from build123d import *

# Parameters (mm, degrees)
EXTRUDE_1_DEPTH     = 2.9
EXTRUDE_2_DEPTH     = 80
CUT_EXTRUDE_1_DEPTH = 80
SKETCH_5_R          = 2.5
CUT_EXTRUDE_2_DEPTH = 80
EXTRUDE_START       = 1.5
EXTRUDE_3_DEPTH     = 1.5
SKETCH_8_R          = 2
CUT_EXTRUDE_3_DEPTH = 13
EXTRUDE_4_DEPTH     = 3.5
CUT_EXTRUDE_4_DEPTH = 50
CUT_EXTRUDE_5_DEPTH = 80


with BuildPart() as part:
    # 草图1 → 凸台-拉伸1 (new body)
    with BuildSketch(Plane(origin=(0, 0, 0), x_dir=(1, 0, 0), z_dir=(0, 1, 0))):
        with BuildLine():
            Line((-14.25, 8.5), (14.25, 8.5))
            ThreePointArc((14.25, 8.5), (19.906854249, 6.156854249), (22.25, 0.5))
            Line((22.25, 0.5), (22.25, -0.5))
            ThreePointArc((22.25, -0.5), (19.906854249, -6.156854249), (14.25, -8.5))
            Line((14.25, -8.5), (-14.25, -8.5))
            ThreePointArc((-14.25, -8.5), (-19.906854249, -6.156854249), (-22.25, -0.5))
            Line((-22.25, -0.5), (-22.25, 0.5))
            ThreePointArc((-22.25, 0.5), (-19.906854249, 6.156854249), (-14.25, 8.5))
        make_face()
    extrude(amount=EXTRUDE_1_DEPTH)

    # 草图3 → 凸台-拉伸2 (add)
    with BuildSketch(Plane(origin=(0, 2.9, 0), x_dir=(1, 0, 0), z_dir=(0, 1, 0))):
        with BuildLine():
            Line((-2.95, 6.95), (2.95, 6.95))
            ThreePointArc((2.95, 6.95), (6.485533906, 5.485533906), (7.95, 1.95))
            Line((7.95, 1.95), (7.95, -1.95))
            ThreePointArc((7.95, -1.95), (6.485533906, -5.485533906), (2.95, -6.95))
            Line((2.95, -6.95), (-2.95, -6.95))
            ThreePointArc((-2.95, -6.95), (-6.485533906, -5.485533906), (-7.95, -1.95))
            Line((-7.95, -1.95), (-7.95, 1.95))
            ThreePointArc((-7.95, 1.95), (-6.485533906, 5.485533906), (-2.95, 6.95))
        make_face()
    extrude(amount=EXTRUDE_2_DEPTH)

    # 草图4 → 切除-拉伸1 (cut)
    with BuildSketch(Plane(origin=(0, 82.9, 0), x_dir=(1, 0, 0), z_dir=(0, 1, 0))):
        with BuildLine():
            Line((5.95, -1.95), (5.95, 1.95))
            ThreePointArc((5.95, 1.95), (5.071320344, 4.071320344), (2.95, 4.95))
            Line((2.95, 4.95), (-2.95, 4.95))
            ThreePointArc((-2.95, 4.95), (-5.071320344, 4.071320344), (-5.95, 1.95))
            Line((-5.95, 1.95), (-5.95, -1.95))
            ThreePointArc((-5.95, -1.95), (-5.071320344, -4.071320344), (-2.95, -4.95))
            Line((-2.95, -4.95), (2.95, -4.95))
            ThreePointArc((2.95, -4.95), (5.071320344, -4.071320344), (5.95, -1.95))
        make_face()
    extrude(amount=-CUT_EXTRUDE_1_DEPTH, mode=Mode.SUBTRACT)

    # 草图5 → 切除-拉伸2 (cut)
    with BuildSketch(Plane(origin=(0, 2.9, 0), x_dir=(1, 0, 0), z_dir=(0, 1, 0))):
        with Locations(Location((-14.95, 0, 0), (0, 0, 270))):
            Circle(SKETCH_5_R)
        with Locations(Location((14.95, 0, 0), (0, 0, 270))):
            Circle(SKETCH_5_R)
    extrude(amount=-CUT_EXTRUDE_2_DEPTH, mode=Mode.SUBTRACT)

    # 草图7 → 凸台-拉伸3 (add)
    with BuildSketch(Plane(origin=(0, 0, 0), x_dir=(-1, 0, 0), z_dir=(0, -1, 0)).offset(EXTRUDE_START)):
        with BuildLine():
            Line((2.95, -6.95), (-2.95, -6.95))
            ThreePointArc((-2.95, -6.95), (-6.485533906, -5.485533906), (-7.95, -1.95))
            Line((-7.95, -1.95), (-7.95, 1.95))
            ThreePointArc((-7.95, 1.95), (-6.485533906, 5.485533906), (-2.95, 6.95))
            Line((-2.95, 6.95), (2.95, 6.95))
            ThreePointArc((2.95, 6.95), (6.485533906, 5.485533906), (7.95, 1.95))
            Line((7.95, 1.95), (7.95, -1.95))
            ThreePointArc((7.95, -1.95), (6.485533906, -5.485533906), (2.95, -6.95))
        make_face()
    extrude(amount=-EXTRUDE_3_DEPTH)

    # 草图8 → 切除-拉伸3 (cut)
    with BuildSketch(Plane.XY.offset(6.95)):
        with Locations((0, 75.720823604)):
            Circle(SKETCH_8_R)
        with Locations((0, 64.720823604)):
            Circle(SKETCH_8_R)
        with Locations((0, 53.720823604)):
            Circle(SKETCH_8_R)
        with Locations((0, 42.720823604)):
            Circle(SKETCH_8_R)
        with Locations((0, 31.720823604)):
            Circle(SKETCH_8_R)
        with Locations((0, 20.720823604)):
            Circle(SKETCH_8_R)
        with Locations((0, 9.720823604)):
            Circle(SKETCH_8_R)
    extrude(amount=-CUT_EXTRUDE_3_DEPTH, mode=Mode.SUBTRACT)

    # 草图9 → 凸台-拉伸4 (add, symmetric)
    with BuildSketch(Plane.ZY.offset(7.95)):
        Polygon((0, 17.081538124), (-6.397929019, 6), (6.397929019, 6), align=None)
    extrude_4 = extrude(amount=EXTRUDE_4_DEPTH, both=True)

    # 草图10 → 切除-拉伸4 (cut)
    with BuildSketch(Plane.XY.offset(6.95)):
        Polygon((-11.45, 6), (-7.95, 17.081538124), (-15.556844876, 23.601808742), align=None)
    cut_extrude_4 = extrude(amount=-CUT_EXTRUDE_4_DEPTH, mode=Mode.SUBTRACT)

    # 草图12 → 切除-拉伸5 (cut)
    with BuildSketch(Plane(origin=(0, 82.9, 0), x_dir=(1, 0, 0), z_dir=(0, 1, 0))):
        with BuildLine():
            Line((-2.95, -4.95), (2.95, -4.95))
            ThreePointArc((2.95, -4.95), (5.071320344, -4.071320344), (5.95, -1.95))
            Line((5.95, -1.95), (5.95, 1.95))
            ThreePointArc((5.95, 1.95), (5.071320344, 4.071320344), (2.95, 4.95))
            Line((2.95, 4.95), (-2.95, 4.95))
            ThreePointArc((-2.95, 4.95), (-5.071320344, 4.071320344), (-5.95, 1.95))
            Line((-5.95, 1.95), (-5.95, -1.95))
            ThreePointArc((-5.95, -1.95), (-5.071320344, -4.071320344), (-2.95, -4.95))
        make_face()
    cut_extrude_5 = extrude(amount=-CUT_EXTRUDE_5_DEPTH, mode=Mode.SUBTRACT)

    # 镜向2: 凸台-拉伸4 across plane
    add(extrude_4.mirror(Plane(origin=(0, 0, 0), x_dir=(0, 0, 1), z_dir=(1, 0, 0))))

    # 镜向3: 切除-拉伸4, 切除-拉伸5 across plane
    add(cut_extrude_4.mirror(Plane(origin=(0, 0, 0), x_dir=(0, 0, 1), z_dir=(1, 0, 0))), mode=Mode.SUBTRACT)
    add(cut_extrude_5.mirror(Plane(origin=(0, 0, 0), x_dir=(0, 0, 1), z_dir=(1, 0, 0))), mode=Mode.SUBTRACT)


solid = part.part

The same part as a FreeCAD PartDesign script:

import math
import FreeCAD as App
import Part
import Sketcher
from FreeCAD import Vector
Q = App.Units.Quantity


def add_polygon(sketch, points):
    """Adds a closed chain of lines whose ends are joined by coincident constraints."""
    first, n = sketch.GeometryCount, len(points)
    for a, b in zip(points, points[1:] + points[:1]):
        sketch.addGeometry(Part.LineSegment(App.Vector(*a, 0), App.Vector(*b, 0)), False)
    for i in range(n):
        sketch.addConstraint(Sketcher.Constraint("Coincident", first + i, 2, first + (i + 1) % n, 1))

doc = App.newDocument("Part")
body = doc.addObject("PartDesign::Body", "Body")

# Sketch on XZ plane
sketch1 = body.newObject("Sketcher::SketchObject", "Sketch")
sketch1.AttachmentSupport = (doc.getObject("XZ_Plane"), [""])
sketch1.MapMode = "FlatFace"
sketch1.addGeometry(Part.LineSegment(Vector(14.2, -8.5, 0), Vector(-14.2, -8.5, 0)), False)
sketch1.addGeometry(Part.ArcOfCircle(Part.Circle(Vector(-14.2, -0.5, 0), Vector(0, 0, 1), 8), math.radians(-180), math.radians(-90)), False)
sketch1.addGeometry(Part.LineSegment(Vector(-22.2, -0.5, 0), Vector(-22.2, 0.5, 0)), False)
sketch1.addGeometry(Part.ArcOfCircle(Part.Circle(Vector(-14.2, 0.5, 0), Vector(0, 0, 1), 8), math.radians(90), math.radians(180)), False)
sketch1.addGeometry(Part.LineSegment(Vector(-14.2, 8.5, 0), Vector(14.2, 8.5, 0)), False)
sketch1.addGeometry(Part.ArcOfCircle(Part.Circle(Vector(14.2, 0.5, 0), Vector(0, 0, 1), 8), math.radians(0), math.radians(90)), False)
sketch1.addGeometry(Part.LineSegment(Vector(22.2, 0.5, 0), Vector(22.2, -0.5, 0)), False)
sketch1.addGeometry(Part.ArcOfCircle(Part.Circle(Vector(14.2, -0.5, 0), Vector(0, 0, 1), 8), math.radians(-90), math.radians(0)), False)
sketch1.addConstraint(Sketcher.Constraint("Tangent", 0, 2, 1, 2))
sketch1.addConstraint(Sketcher.Constraint("Tangent", 1, 1, 2, 1))
sketch1.addConstraint(Sketcher.Constraint("Tangent", 2, 2, 3, 2))
sketch1.addConstraint(Sketcher.Constraint("Tangent", 3, 1, 4, 1))
sketch1.addConstraint(Sketcher.Constraint("Tangent", 4, 2, 5, 2))
sketch1.addConstraint(Sketcher.Constraint("Tangent", 5, 1, 6, 1))
sketch1.addConstraint(Sketcher.Constraint("Tangent", 6, 2, 7, 2))
sketch1.addConstraint(Sketcher.Constraint("Tangent", 7, 1, 0, 1))
sketch1.addConstraint(Sketcher.Constraint("Horizontal", 0))
sketch1.addConstraint(Sketcher.Constraint("Vertical", 2))
sketch1.addConstraint(Sketcher.Constraint("Horizontal", 4))
sketch1.addConstraint(Sketcher.Constraint("Vertical", 6))
sketch1.addConstraint(Sketcher.Constraint("Equal", 1, 3))
sketch1.addConstraint(Sketcher.Constraint("Equal", 3, 5))
sketch1.addConstraint(Sketcher.Constraint("Equal", 5, 7))
sketch1.addConstraint(Sketcher.Constraint("Symmetric", 1, 3, 5, 3, -1, 1))
sketch1.addConstraint(Sketcher.Constraint("Radius", 1, Q("8 mm")))
sketch1.addConstraint(Sketcher.Constraint("DistanceY", 2, 1, 2, 2, Q("1 mm")))
sketch1.addConstraint(Sketcher.Constraint("DistanceX", 0, 2, 0, 1, Q("28.5 mm")))
pad1 = body.newObject("PartDesign::Pad", "Pad")
pad1.Profile = sketch1
pad1.Length = 2.9
pad1.Reversed = True

# Sketch on XZ plane
sketch2 = body.newObject("Sketcher::SketchObject", "Sketch001")
sketch2.AttachmentSupport = (doc.getObject("XZ_Plane"), [""])
sketch2.MapMode = "FlatFace"
sketch2.AttachmentOffset = App.Placement(Vector(0, 0, -2.9), App.Rotation())
sketch2.addGeometry(Part.LineSegment(Vector(3, -7, 0), Vector(-3, -7, 0)), False)
sketch2.addGeometry(Part.ArcOfCircle(Part.Circle(Vector(-3, -1.9, 0), Vector(0, 0, 1), 5), math.radians(180), math.radians(270)), False)
sketch2.addGeometry(Part.LineSegment(Vector(-8, -1.9, 0), Vector(-8, 1.9, 0)), False)
sketch2.addGeometry(Part.ArcOfCircle(Part.Circle(Vector(-3, 1.9, 0), Vector(0, 0, 1), 5), math.radians(90), math.radians(180)), False)
sketch2.addGeometry(Part.LineSegment(Vector(-3, 7, 0), Vector(3, 7, 0)), False)
sketch2.addGeometry(Part.ArcOfCircle(Part.Circle(Vector(3, 1.9, 0), Vector(0, 0, 1), 5), math.radians(0), math.radians(90)), False)
sketch2.addGeometry(Part.LineSegment(Vector(8, 1.9, 0), Vector(8, -1.9, 0)), False)
sketch2.addGeometry(Part.ArcOfCircle(Part.Circle(Vector(3, -1.9, 0), Vector(0, 0, 1), 5), math.radians(-90), math.radians(0)), False)
sketch2.addConstraint(Sketcher.Constraint("Tangent", 0, 2, 1, 2))
sketch2.addConstraint(Sketcher.Constraint("Tangent", 1, 1, 2, 1))
sketch2.addConstraint(Sketcher.Constraint("Tangent", 2, 2, 3, 2))
sketch2.addConstraint(Sketcher.Constraint("Tangent", 3, 1, 4, 1))
sketch2.addConstraint(Sketcher.Constraint("Tangent", 4, 2, 5, 2))
sketch2.addConstraint(Sketcher.Constraint("Tangent", 5, 1, 6, 1))
sketch2.addConstraint(Sketcher.Constraint("Tangent", 6, 2, 7, 2))
sketch2.addConstraint(Sketcher.Constraint("Tangent", 7, 1, 0, 1))
sketch2.addConstraint(Sketcher.Constraint("Horizontal", 0))
sketch2.addConstraint(Sketcher.Constraint("Vertical", 2))
sketch2.addConstraint(Sketcher.Constraint("Horizontal", 4))
sketch2.addConstraint(Sketcher.Constraint("Vertical", 6))
sketch2.addConstraint(Sketcher.Constraint("Equal", 1, 3))
sketch2.addConstraint(Sketcher.Constraint("Equal", 3, 5))
sketch2.addConstraint(Sketcher.Constraint("Equal", 5, 7))
sketch2.addConstraint(Sketcher.Constraint("Symmetric", 1, 3, 5, 3, -1, 1))
sketch2.addConstraint(Sketcher.Constraint("Radius", 1, Q("5 mm")))
sketch2.addConstraint(Sketcher.Constraint("DistanceX", 0, 2, 0, 1, Q("5.9 mm")))
sketch2.addConstraint(Sketcher.Constraint("DistanceY", 2, 1, 2, 2, Q("3.9 mm")))
pad2 = body.newObject("PartDesign::Pad", "Pad001")
pad2.Profile = sketch2
pad2.Length = 80
pad2.Reversed = True

# Sketch on XZ plane
sketch3 = body.newObject("Sketcher::SketchObject", "Sketch002")
sketch3.AttachmentSupport = (doc.getObject("XZ_Plane"), [""])
sketch3.MapMode = "FlatFace"
sketch3.AttachmentOffset = App.Placement(Vector(0, 0, -82.9), App.Rotation())
sketch3.addGeometry(Part.LineSegment(Vector(6, 1.9, 0), Vector(6, -1.9, 0)), False)
sketch3.addGeometry(Part.ArcOfCircle(Part.Circle(Vector(3, -2, 0), Vector(0, 0, 1), 3), math.radians(-90), math.radians(0)), False)
sketch3.addGeometry(Part.LineSegment(Vector(3, -5, 0), Vector(-3, -5, 0)), False)
sketch3.addGeometry(Part.ArcOfCircle(Part.Circle(Vector(-3, -2, 0), Vector(0, 0, 1), 3), math.radians(180), math.radians(270)), False)
sketch3.addGeometry(Part.LineSegment(Vector(-6, -1.9, 0), Vector(-6, 1.9, 0)), False)
sketch3.addGeometry(Part.ArcOfCircle(Part.Circle(Vector(-3, 2, 0), Vector(0, 0, 1), 3), math.radians(90), math.radians(180)), False)
sketch3.addGeometry(Part.LineSegment(Vector(-3, 5, 0), Vector(3, 5, 0)), False)
sketch3.addGeometry(Part.ArcOfCircle(Part.Circle(Vector(3, 2, 0), Vector(0, 0, 1), 3), math.radians(0), math.radians(90)), False)
sketch3.addConstraint(Sketcher.Constraint("Tangent", 0, 2, 1, 2))
sketch3.addConstraint(Sketcher.Constraint("Tangent", 1, 1, 2, 1))
sketch3.addConstraint(Sketcher.Constraint("Tangent", 2, 2, 3, 2))
sketch3.addConstraint(Sketcher.Constraint("Tangent", 3, 1, 4, 1))
sketch3.addConstraint(Sketcher.Constraint("Tangent", 4, 2, 5, 2))
sketch3.addConstraint(Sketcher.Constraint("Tangent", 5, 1, 6, 1))
sketch3.addConstraint(Sketcher.Constraint("Tangent", 6, 2, 7, 2))
sketch3.addConstraint(Sketcher.Constraint("Tangent", 7, 1, 0, 1))
sketch3.addConstraint(Sketcher.Constraint("Vertical", 0))
sketch3.addConstraint(Sketcher.Constraint("Horizontal", 2))
sketch3.addConstraint(Sketcher.Constraint("Vertical", 4))
sketch3.addConstraint(Sketcher.Constraint("Horizontal", 6))
sketch3.addConstraint(Sketcher.Constraint("Equal", 1, 3))
sketch3.addConstraint(Sketcher.Constraint("Equal", 3, 5))
sketch3.addConstraint(Sketcher.Constraint("Equal", 5, 7))
sketch3.addConstraint(Sketcher.Constraint("Symmetric", 1, 3, 5, 3, -1, 1))
sketch3.addConstraint(Sketcher.Constraint("Radius", 1, Q("3 mm")))
sketch3.addConstraint(Sketcher.Constraint("DistanceX", 2, 2, 2, 1, Q("5.9 mm")))
sketch3.addConstraint(Sketcher.Constraint("DistanceY", 0, 2, 0, 1, Q("3.9 mm")))
pocket1 = body.newObject("PartDesign::Pocket", "Pocket")
pocket1.Profile = sketch3
pocket1.Length = 80
pocket1.Reversed = True

# Sketch on XZ plane
sketch4 = body.newObject("Sketcher::SketchObject", "Sketch003")
sketch4.AttachmentSupport = (doc.getObject("XZ_Plane"), [""])
sketch4.MapMode = "FlatFace"
sketch4.AttachmentOffset = App.Placement(Vector(0, 0, -2.9), App.Rotation())
sketch4.addGeometry(Part.Circle(Vector(-14.9, 0, 0), Vector(0, 0, 1), 2.5), False)
sketch4.addGeometry(Part.Circle(Vector(14.9, 0, 0), Vector(0, 0, 1), 2.5), False)
sketch4.addConstraint(Sketcher.Constraint("Equal", 0, 1))
sketch4.addConstraint(Sketcher.Constraint("Symmetric", 0, 3, 1, 3, -1, 1))
sketch4.addConstraint(Sketcher.Constraint("PointOnObject", 0, 3, -1))
sketch4.addConstraint(Sketcher.Constraint("Diameter", 0, Q("5 mm")))
sketch4.addConstraint(Sketcher.Constraint("DistanceX", 0, 3, 1, 3, Q("29.9 mm")))
pocket2 = body.newObject("PartDesign::Pocket", "Pocket001")
pocket2.Profile = sketch4
pocket2.Length = 80
pocket2.Reversed = True

# Sketch on XZ plane
sketch5 = body.newObject("Sketcher::SketchObject", "Sketch004")
sketch5.AttachmentSupport = (doc.getObject("XZ_Plane"), [""])
sketch5.MapMode = "FlatFace"
sketch5.AttachmentOffset = App.Placement(Vector(0, 0, 1.5), App.Rotation())
sketch5.addGeometry(Part.LineSegment(Vector(3, 7, 0), Vector(-3, 7, 0)), False)
sketch5.addGeometry(Part.ArcOfCircle(Part.Circle(Vector(-3, 1.9, 0), Vector(0, 0, 1), 5), math.radians(90), math.radians(180)), False)
sketch5.addGeometry(Part.LineSegment(Vector(-8, 1.9, 0), Vector(-8, -1.9, 0)), False)
sketch5.addGeometry(Part.ArcOfCircle(Part.Circle(Vector(-3, -1.9, 0), Vector(0, 0, 1), 5), math.radians(180), math.radians(270)), False)
sketch5.addGeometry(Part.LineSegment(Vector(-3, -7, 0), Vector(3, -7, 0)), False)
sketch5.addGeometry(Part.ArcOfCircle(Part.Circle(Vector(3, -1.9, 0), Vector(0, 0, 1), 5), math.radians(-90), math.radians(0)), False)
sketch5.addGeometry(Part.LineSegment(Vector(8, -1.9, 0), Vector(8, 1.9, 0)), False)
sketch5.addGeometry(Part.ArcOfCircle(Part.Circle(Vector(3, 1.9, 0), Vector(0, 0, 1), 5), math.radians(0), math.radians(90)), False)
sketch5.addConstraint(Sketcher.Constraint("Tangent", 0, 2, 1, 1))
sketch5.addConstraint(Sketcher.Constraint("Tangent", 1, 2, 2, 1))
sketch5.addConstraint(Sketcher.Constraint("Tangent", 2, 2, 3, 1))
sketch5.addConstraint(Sketcher.Constraint("Tangent", 3, 2, 4, 1))
sketch5.addConstraint(Sketcher.Constraint("Tangent", 4, 2, 5, 1))
sketch5.addConstraint(Sketcher.Constraint("Tangent", 5, 2, 6, 1))
sketch5.addConstraint(Sketcher.Constraint("Tangent", 6, 2, 7, 1))
sketch5.addConstraint(Sketcher.Constraint("Tangent", 7, 2, 0, 1))
sketch5.addConstraint(Sketcher.Constraint("Horizontal", 0))
sketch5.addConstraint(Sketcher.Constraint("Vertical", 2))
sketch5.addConstraint(Sketcher.Constraint("Horizontal", 4))
sketch5.addConstraint(Sketcher.Constraint("Vertical", 6))
sketch5.addConstraint(Sketcher.Constraint("Equal", 1, 3))
sketch5.addConstraint(Sketcher.Constraint("Equal", 3, 5))
sketch5.addConstraint(Sketcher.Constraint("Equal", 5, 7))
sketch5.addConstraint(Sketcher.Constraint("Symmetric", 1, 3, 5, 3, -1, 1))
sketch5.addConstraint(Sketcher.Constraint("Radius", 1, Q("5 mm")))
sketch5.addConstraint(Sketcher.Constraint("DistanceX", 0, 2, 0, 1, Q("5.9 mm")))
sketch5.addConstraint(Sketcher.Constraint("DistanceY", 2, 2, 2, 1, Q("3.9 mm")))
pad3 = body.newObject("PartDesign::Pad", "Pad002")
pad3.Profile = sketch5
pad3.Length = 1.5
pad3.Reversed = True

# Sketch on XY plane
sketch6 = body.newObject("Sketcher::SketchObject", "Sketch005")
sketch6.AttachmentSupport = (doc.getObject("XY_Plane"), [""])
sketch6.MapMode = "FlatFace"
sketch6.AttachmentOffset = App.Placement(Vector(0, 0, 6.95), App.Rotation())
sketch6.addGeometry(Part.Circle(Vector(0, 75.7, 0), Vector(0, 0, 1), 2), False)
sketch6.addGeometry(Part.Circle(Vector(0, 64.7, 0), Vector(0, 0, 1), 2), False)
sketch6.addGeometry(Part.Circle(Vector(0, 53.7, 0), Vector(0, 0, 1), 2), False)
sketch6.addGeometry(Part.Circle(Vector(0, 42.7, 0), Vector(0, 0, 1), 2), False)
sketch6.addGeometry(Part.Circle(Vector(0, 31.7, 0), Vector(0, 0, 1), 2), False)
sketch6.addGeometry(Part.Circle(Vector(0, 20.7, 0), Vector(0, 0, 1), 2), False)
sketch6.addGeometry(Part.Circle(Vector(0, 9.7, 0), Vector(0, 0, 1), 2), False)
sketch6.addConstraint(Sketcher.Constraint("Equal", 0, 1))
sketch6.addConstraint(Sketcher.Constraint("Equal", 1, 2))
sketch6.addConstraint(Sketcher.Constraint("Equal", 2, 3))
sketch6.addConstraint(Sketcher.Constraint("Equal", 3, 4))
sketch6.addConstraint(Sketcher.Constraint("Equal", 4, 5))
sketch6.addConstraint(Sketcher.Constraint("Equal", 5, 6))
sketch6.addConstraint(Sketcher.Constraint("PointOnObject", 0, 3, -2))
sketch6.addConstraint(Sketcher.Constraint("PointOnObject", 1, 3, -2))
sketch6.addConstraint(Sketcher.Constraint("PointOnObject", 2, 3, -2))
sketch6.addConstraint(Sketcher.Constraint("PointOnObject", 3, 3, -2))
sketch6.addConstraint(Sketcher.Constraint("PointOnObject", 4, 3, -2))
sketch6.addConstraint(Sketcher.Constraint("PointOnObject", 5, 3, -2))
sketch6.addConstraint(Sketcher.Constraint("PointOnObject", 6, 3, -2))
sketch6.addConstraint(Sketcher.Constraint("Diameter", 0, Q("4 mm")))
sketch6.addConstraint(Sketcher.Constraint("DistanceY", 1, 3, 0, 3, Q("11 mm")))
sketch6.addConstraint(Sketcher.Constraint("DistanceY", 2, 3, 1, 3, Q("11 mm")))
sketch6.addConstraint(Sketcher.Constraint("DistanceY", 3, 3, 2, 3, Q("11 mm")))
sketch6.addConstraint(Sketcher.Constraint("DistanceY", 4, 3, 3, 3, Q("11 mm")))
sketch6.addConstraint(Sketcher.Constraint("DistanceY", 5, 3, 4, 3, Q("11 mm")))
sketch6.addConstraint(Sketcher.Constraint("DistanceY", 6, 3, 5, 3, Q("11 mm")))
sketch6.addConstraint(Sketcher.Constraint("DistanceY", -1, 1, 0, 3, Q("75.720824 mm")))
pocket3 = body.newObject("PartDesign::Pocket", "Pocket002")
pocket3.Profile = sketch6
pocket3.Length = 13

# Sketch on YZ plane
sketch7 = body.newObject("Sketcher::SketchObject", "Sketch006")
sketch7.AttachmentSupport = (doc.getObject("YZ_Plane"), [""])
sketch7.MapMode = "FlatFace"
sketch7.AttachmentOffset = App.Placement(Vector(0, 0, -7.95), App.Rotation())
add_polygon(sketch7, [(17, 0), (6, -6), (6, 6)])  # lines 0-2
sketch7.addConstraint(Sketcher.Constraint("Vertical", 1))
sketch7.addConstraint(Sketcher.Constraint("PointOnObject", 2, 2, -1))
sketch7.addConstraint(Sketcher.Constraint("Equal", 0, 2))
sketch7.addConstraint(Sketcher.Constraint("Angle", 0, Q("-150 deg")))
sketch7.addConstraint(Sketcher.Constraint("DistanceX", -1, 1, 0, 2, Q("6 mm")))
sketch7.addConstraint(Sketcher.Constraint("DistanceY", 1, 1, 1, 2, Q("12.795858 mm")))
pad4 = body.newObject("PartDesign::Pad", "Pad003")
pad4.Profile = sketch7
pad4.Length = 7
pad4.Midplane = True

# Sketch on XY plane
sketch8 = body.newObject("Sketcher::SketchObject", "Sketch007")
sketch8.AttachmentSupport = (doc.getObject("XY_Plane"), [""])
sketch8.MapMode = "FlatFace"
sketch8.AttachmentOffset = App.Placement(Vector(0, 0, 6.95), App.Rotation())
add_polygon(sketch8, [(-11, 6), (-8, 17), (-16, 24)])  # lines 0-2
sketch8.addConstraint(Sketcher.Constraint("DistanceY", -1, 1, 2, 2, Q("6 mm")))
sketch8.addConstraint(Sketcher.Constraint("DistanceX", 2, 2, 0, 2, Q("3.5 mm")))
sketch8.addConstraint(Sketcher.Constraint("DistanceX", 0, 2, -1, 1, Q("7.95 mm")))
sketch8.addConstraint(Sketcher.Constraint("DistanceY", -1, 1, 0, 2, Q("17.081538 mm")))
sketch8.addConstraint(Sketcher.Constraint("DistanceY", -1, 1, 1, 2, Q("23.601809 mm")))
sketch8.addConstraint(Sketcher.Constraint("Distance", 1, Q("10.018883 mm")))
pocket4 = body.newObject("PartDesign::Pocket", "Pocket003")
pocket4.Profile = sketch8
pocket4.Length = 50

# Sketch on XZ plane
sketch9 = body.newObject("Sketcher::SketchObject", "Sketch008")
sketch9.AttachmentSupport = (doc.getObject("XZ_Plane"), [""])
sketch9.MapMode = "FlatFace"
sketch9.AttachmentOffset = App.Placement(Vector(0, 0, -82.9), App.Rotation())
sketch9.addGeometry(Part.LineSegment(Vector(-3, 5, 0), Vector(3, 5, 0)), False)
sketch9.addGeometry(Part.ArcOfCircle(Part.Circle(Vector(3, 2, 0), Vector(0, 0, 1), 3), math.radians(0), math.radians(90)), False)
sketch9.addGeometry(Part.LineSegment(Vector(6, 1.9, 0), Vector(6, -1.9, 0)), False)
sketch9.addGeometry(Part.ArcOfCircle(Part.Circle(Vector(3, -2, 0), Vector(0, 0, 1), 3), math.radians(-90), math.radians(0)), False)
sketch9.addGeometry(Part.LineSegment(Vector(3, -5, 0), Vector(-3, -5, 0)), False)
sketch9.addGeometry(Part.ArcOfCircle(Part.Circle(Vector(-3, -2, 0), Vector(0, 0, 1), 3), math.radians(180), math.radians(270)), False)
sketch9.addGeometry(Part.LineSegment(Vector(-6, -1.9, 0), Vector(-6, 1.9, 0)), False)
sketch9.addGeometry(Part.ArcOfCircle(Part.Circle(Vector(-3, 2, 0), Vector(0, 0, 1), 3), math.radians(90), math.radians(180)), False)
sketch9.addConstraint(Sketcher.Constraint("Tangent", 0, 2, 1, 2))
sketch9.addConstraint(Sketcher.Constraint("Tangent", 1, 1, 2, 1))
sketch9.addConstraint(Sketcher.Constraint("Tangent", 2, 2, 3, 2))
sketch9.addConstraint(Sketcher.Constraint("Tangent", 3, 1, 4, 1))
sketch9.addConstraint(Sketcher.Constraint("Tangent", 4, 2, 5, 2))
sketch9.addConstraint(Sketcher.Constraint("Tangent", 5, 1, 6, 1))
sketch9.addConstraint(Sketcher.Constraint("Tangent", 6, 2, 7, 2))
sketch9.addConstraint(Sketcher.Constraint("Tangent", 7, 1, 0, 1))
sketch9.addConstraint(Sketcher.Constraint("Horizontal", 0))
sketch9.addConstraint(Sketcher.Constraint("Vertical", 2))
sketch9.addConstraint(Sketcher.Constraint("Horizontal", 4))
sketch9.addConstraint(Sketcher.Constraint("Vertical", 6))
sketch9.addConstraint(Sketcher.Constraint("Equal", 1, 3))
sketch9.addConstraint(Sketcher.Constraint("Equal", 3, 5))
sketch9.addConstraint(Sketcher.Constraint("Equal", 5, 7))
sketch9.addConstraint(Sketcher.Constraint("Symmetric", 1, 3, 5, 3, -1, 1))
sketch9.addConstraint(Sketcher.Constraint("Radius", 1, Q("3 mm")))
sketch9.addConstraint(Sketcher.Constraint("DistanceX", 0, 1, 0, 2, Q("5.9 mm")))
sketch9.addConstraint(Sketcher.Constraint("DistanceY", 2, 2, 2, 1, Q("3.9 mm")))
pocket5 = body.newObject("PartDesign::Pocket", "Pocket004")
pocket5.Profile = sketch9
pocket5.Length = 80
pocket5.Reversed = True
doc.recompute()

mirrored = body.newObject("PartDesign::Mirrored", "Mirrored")
mirrored.Originals = [pad4]
mirrored.MirrorPlane = (doc.getObject("YZ_Plane"), [""])
body.Tip = mirrored
doc.recompute()

mirrored2 = body.newObject("PartDesign::Mirrored", "Mirrored001")
mirrored2.Originals = [pocket4, pocket5]
mirrored2.MirrorPlane = (doc.getObject("YZ_Plane"), [""])
body.Tip = mirrored2

doc.recompute()
